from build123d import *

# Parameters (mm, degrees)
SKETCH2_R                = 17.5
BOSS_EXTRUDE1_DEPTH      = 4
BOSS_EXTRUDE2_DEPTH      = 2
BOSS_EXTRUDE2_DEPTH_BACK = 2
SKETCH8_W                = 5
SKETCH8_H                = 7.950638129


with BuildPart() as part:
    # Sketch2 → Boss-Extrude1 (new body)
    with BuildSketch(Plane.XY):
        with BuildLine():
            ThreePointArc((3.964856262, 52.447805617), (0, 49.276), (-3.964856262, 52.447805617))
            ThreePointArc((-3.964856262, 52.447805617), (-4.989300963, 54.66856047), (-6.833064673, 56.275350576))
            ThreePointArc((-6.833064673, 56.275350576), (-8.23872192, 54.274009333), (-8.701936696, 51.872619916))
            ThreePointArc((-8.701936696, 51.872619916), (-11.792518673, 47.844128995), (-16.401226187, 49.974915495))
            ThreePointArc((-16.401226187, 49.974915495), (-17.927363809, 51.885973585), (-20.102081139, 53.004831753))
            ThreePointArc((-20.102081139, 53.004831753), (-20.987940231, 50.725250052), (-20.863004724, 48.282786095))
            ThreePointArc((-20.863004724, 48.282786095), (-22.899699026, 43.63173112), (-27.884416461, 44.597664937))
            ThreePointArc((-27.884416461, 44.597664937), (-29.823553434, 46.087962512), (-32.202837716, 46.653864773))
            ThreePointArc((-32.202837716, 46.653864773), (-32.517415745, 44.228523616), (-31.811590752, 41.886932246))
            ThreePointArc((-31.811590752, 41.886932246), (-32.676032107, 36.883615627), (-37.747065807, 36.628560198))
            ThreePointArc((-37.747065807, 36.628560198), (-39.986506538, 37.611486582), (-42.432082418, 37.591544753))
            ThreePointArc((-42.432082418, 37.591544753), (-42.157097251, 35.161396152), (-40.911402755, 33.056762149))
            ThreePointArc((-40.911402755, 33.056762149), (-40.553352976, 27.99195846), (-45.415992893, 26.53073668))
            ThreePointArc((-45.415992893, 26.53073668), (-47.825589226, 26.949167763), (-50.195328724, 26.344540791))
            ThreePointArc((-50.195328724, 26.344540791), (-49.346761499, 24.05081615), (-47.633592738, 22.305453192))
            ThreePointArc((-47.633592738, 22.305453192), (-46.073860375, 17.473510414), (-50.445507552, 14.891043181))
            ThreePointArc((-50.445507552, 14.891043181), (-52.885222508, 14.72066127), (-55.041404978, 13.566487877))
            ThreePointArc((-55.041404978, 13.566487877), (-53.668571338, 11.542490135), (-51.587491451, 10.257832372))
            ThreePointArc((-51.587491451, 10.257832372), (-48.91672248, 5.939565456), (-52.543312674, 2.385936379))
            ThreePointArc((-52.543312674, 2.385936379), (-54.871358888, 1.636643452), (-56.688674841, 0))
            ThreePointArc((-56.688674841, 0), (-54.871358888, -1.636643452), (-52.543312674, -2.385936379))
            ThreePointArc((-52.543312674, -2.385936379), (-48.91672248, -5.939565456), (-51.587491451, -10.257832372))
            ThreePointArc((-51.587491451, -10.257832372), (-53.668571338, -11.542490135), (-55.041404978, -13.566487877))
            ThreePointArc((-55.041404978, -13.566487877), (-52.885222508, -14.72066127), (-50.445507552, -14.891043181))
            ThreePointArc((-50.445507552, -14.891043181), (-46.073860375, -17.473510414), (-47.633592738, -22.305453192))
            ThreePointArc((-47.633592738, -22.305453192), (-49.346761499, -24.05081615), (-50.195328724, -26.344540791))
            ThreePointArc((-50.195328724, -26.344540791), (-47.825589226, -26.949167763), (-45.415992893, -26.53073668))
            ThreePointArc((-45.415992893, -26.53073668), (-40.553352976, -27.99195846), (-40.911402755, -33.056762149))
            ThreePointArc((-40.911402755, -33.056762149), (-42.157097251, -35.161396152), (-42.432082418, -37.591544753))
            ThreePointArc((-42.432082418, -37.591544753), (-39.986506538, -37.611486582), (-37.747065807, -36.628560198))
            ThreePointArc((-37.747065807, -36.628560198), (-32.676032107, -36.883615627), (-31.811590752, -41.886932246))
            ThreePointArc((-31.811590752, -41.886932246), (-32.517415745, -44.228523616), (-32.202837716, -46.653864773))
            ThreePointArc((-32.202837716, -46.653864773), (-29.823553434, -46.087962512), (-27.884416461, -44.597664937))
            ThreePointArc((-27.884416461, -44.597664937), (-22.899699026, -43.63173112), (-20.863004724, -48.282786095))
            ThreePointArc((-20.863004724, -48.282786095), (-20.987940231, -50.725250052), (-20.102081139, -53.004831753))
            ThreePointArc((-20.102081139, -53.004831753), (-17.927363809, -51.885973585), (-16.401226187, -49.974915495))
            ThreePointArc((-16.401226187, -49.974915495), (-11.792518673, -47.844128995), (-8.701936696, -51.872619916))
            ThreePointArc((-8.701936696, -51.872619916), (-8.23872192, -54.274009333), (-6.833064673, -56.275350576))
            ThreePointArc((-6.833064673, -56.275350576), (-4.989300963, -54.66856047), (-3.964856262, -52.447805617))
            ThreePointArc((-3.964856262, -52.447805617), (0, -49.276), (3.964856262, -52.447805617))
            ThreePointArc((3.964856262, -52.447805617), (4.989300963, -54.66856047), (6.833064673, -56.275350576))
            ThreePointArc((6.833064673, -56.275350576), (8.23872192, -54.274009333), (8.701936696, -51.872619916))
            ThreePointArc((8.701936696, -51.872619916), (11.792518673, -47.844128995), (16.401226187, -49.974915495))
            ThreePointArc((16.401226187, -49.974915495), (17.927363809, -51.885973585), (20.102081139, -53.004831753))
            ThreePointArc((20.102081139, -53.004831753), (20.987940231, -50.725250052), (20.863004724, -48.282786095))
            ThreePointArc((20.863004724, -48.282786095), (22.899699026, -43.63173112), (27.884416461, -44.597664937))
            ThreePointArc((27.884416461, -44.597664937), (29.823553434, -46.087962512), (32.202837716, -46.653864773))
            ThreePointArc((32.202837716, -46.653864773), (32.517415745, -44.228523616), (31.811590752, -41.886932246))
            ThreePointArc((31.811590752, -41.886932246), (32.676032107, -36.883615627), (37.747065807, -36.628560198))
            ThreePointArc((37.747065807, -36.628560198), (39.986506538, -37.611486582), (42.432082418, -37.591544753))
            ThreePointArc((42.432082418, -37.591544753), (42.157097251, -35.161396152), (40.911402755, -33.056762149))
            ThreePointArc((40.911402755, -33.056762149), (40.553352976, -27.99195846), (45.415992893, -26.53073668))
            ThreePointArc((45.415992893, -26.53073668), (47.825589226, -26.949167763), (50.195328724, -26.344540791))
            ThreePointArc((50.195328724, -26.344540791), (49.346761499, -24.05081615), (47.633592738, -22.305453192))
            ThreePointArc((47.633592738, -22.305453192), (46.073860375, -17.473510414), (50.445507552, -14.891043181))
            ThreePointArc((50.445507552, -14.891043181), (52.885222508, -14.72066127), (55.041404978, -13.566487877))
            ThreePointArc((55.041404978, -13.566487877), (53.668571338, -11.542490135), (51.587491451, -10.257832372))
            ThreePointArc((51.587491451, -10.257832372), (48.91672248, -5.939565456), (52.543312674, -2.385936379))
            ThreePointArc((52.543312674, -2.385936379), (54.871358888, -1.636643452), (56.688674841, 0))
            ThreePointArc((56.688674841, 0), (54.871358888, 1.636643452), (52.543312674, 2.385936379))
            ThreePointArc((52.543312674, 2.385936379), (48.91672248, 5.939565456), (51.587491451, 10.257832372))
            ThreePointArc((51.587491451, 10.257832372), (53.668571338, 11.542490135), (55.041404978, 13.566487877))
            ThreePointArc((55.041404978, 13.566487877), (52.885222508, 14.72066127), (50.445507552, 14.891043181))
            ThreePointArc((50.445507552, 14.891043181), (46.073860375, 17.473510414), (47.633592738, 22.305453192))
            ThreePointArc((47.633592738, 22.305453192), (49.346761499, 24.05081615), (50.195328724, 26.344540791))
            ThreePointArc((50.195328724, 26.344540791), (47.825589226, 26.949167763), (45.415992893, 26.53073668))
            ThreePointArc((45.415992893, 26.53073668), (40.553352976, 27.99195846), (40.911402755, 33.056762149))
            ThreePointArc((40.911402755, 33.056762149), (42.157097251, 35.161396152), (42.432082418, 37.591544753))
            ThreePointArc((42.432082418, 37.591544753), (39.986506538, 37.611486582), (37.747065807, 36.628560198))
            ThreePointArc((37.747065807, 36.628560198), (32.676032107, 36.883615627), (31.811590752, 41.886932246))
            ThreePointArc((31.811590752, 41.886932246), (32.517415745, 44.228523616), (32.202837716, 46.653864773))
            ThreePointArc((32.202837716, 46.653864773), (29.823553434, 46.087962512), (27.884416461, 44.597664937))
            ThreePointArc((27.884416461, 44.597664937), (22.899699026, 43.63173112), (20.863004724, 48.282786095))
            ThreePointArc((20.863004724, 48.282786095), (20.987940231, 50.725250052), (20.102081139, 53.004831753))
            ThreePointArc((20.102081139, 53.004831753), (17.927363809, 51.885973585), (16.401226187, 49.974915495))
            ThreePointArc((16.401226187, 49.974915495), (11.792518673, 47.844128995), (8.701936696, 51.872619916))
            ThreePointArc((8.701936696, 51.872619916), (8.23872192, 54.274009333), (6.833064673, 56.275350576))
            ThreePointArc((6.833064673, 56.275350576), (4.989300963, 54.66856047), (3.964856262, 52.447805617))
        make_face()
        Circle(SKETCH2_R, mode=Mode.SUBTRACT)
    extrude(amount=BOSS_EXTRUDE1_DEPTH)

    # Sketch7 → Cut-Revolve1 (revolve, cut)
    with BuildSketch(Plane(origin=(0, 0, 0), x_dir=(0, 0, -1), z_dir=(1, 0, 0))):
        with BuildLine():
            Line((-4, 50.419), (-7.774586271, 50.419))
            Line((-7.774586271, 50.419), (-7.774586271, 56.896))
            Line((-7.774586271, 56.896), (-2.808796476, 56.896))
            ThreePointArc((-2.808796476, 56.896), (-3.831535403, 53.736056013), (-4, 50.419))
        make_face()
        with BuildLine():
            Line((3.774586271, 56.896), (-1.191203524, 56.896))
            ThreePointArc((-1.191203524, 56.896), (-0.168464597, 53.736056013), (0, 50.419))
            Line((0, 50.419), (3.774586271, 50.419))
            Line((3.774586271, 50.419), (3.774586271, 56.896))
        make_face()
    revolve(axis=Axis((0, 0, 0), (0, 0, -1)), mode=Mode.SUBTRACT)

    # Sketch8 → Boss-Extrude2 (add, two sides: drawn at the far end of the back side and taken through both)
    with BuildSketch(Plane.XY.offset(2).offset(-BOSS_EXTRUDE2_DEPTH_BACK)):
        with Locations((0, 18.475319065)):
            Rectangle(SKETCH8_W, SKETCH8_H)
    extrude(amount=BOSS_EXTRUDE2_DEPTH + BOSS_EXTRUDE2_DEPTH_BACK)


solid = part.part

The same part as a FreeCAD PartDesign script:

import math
import FreeCAD as App
import Part
import Sketcher
from FreeCAD import Vector


def add_polygon(sketch, points):
    """Adds a closed chain of lines whose ends are joined by coincident constraints."""
    first, n = sketch.GeometryCount, len(points)
    for a, b in zip(points, points[1:] + points[:1]):
        sketch.addGeometry(Part.LineSegment(App.Vector(*a, 0), App.Vector(*b, 0)), False)
    for i in range(n):
        sketch.addConstraint(Sketcher.Constraint("Coincident", first + i, 2, first + (i + 1) % n, 1))

doc = App.newDocument("Part")
body = doc.addObject("PartDesign::Body", "Body")

# Sketch on XY plane
sketch1 = doc.addObject("Sketcher::SketchObject", "Sketch")
body.addObject(sketch1)
sketch1.AttachmentSupport = (doc.XY_Plane, [""])
sketch1.MapMode = "FlatFace"
sketch1.addGeometry([
    Part.ArcOfCircle(Part.Circle(Vector(0, 53.34, 0), Vector(0, 0, 1), 4.064), math.radians(-167.318217), math.radians(-12.681783)),  # 0
    Part.ArcOfCircle(Part.Circle(Vector(-9.664337, 51.165276, 0), Vector(0, 0, 1), 5.842), math.radians(12.681783), math.radians(61.011048)),  # 1
    Part.ArcOfCircle(Part.Circle(Vector(-2.861143, 51.991334, 0), Vector(0, 0, 1), 5.842), math.radians(132.835105), math.radians(181.164371)),  # 2
    Part.ArcOfCircle(Part.Circle(Vector(-12.765098, 51.790037, 0), Vector(0, 0, 1), 4.064), math.radians(-153.472063), math.radians(1.164371)),  # 3
    Part.ArcOfCircle(Part.Circle(Vector(-21.628161, 47.365679, 0), Vector(0, 0, 1), 5.842), math.radians(26.527936), math.radians(74.857202)),  # 4
    Part.ArcOfCircle(Part.Circle(Vector(-15.220344, 49.795844, 0), Vector(0, 0, 1), 5.842), math.radians(146.681259), math.radians(195.010525)),  # 5
    Part.ArcOfCircle(Part.Circle(Vector(-24.788334, 47.230224, 0), Vector(0, 0, 1), 4.064), math.radians(-139.62591), math.radians(15.010525)),  # 6
    Part.ArcOfCircle(Part.Circle(Vector(-32.335035, 40.813361, 0), Vector(0, 0, 1), 5.842), math.radians(40.37409), math.radians(88.703356)),  # 7
    Part.ArcOfCircle(Part.Circle(Vector(-26.694994, 44.7064, 0), Vector(0, 0, 1), 5.842), math.radians(160.527413), math.radians(208.856679)),  # 8
    Part.ArcOfCircle(Part.Circle(Vector(-35.370963, 39.925563, 0), Vector(0, 0, 1), 4.064), math.radians(-125.779756), math.radians(28.856679)),  # 9
    Part.ArcOfCircle(Part.Circle(Vector(-41.162714, 31.889118, 0), Vector(0, 0, 1), 5.842), math.radians(54.220244), math.radians(102.54951)),  # 10
    Part.ArcOfCircle(Part.Circle(Vector(-36.618228, 37.018783, 0), Vector(0, 0, 1), 5.842), math.radians(174.373567), math.radians(222.702833)),  # 11
    Part.ArcOfCircle(Part.Circle(Vector(-43.897959, 30.300574, 0), Vector(0, 0, 1), 4.064), math.radians(-111.933602), math.radians(42.702833)),  # 12
    Part.ArcOfCircle(Part.Circle(Vector(-47.598166, 21.111596, 0), Vector(0, 0, 1), 5.842), math.radians(68.066398), math.radians(116.395664)),  # 13
    Part.ArcOfCircle(Part.Circle(Vector(-44.413343, 27.179769, 0), Vector(0, 0, 1), 5.842), math.radians(-171.780279), math.radians(-123.451013)),  # 14
    Part.ArcOfCircle(Part.Circle(Vector(-49.873766, 18.914625, 0), Vector(0, 0, 1), 4.064), math.radians(-98.087448), math.radians(56.548987)),  # 15
    Part.ArcOfCircle(Part.Circle(Vector(-51.267385, 9.107145, 0), Vector(0, 0, 1), 5.842), math.radians(81.912552), math.radians(130.241818)),  # 16
    Part.ArcOfCircle(Part.Circle(Vector(-49.627317, 15.761166, 0), Vector(0, 0, 1), 5.842), math.radians(-157.934125), math.radians(-109.60486)),  # 17
    Part.ArcOfCircle(Part.Circle(Vector(-52.951091, 6.429427, 0), Vector(0, 0, 1), 4.064), math.radians(-84.241294), math.radians(70.39514)),  # 18
    Part.ArcOfCircle(Part.Circle(Vector(-51.957131, -3.426581, 0), Vector(0, 0, 1), 5.842), math.radians(95.758706), math.radians(144.087972)),  # 19
    Part.ArcOfCircle(Part.Circle(Vector(-51.957131, 3.426581, 0), Vector(0, 0, 1), 5.842), math.radians(-144.087972), math.radians(-95.758706)),  # 20
    Part.ArcOfCircle(Part.Circle(Vector(-52.951091, -6.429427, 0), Vector(0, 0, 1), 4.064), math.radians(-70.39514), math.radians(84.241294)),  # 21
    Part.ArcOfCircle(Part.Circle(Vector(-49.627317, -15.761166, 0), Vector(0, 0, 1), 5.842), math.radians(109.60486), math.radians(157.934125)),  # 22
    Part.ArcOfCircle(Part.Circle(Vector(-51.267385, -9.107145, 0), Vector(0, 0, 1), 5.842), math.radians(-130.241818), math.radians(-81.912552)),  # 23
    Part.ArcOfCircle(Part.Circle(Vector(-49.873766, -18.914625, 0), Vector(0, 0, 1), 4.064), math.radians(-56.548987), math.radians(98.087448)),  # 24
    Part.ArcOfCircle(Part.Circle(Vector(-44.413343, -27.179769, 0), Vector(0, 0, 1), 5.842), math.radians(123.451013), math.radians(171.780279)),  # 25
    Part.ArcOfCircle(Part.Circle(Vector(-47.598166, -21.111596, 0), Vector(0, 0, 1), 5.842), math.radians(-116.395664), math.radians(-68.066398)),  # 26
    Part.ArcOfCircle(Part.Circle(Vector(-43.897959, -30.300574, 0), Vector(0, 0, 1), 4.064), math.radians(-42.702833), math.radians(111.933602)),  # 27
    Part.ArcOfCircle(Part.Circle(Vector(-36.618228, -37.018783, 0), Vector(0, 0, 1), 5.842), math.radians(137.297167), math.radians(185.626433)),  # 28
    Part.ArcOfCircle(Part.Circle(Vector(-41.162714, -31.889118, 0), Vector(0, 0, 1), 5.842), math.radians(-102.54951), math.radians(-54.220244)),  # 29
    Part.ArcOfCircle(Part.Circle(Vector(-35.370963, -39.925563, 0), Vector(0, 0, 1), 4.064), math.radians(-28.856679), math.radians(125.779756)),  # 30
    Part.ArcOfCircle(Part.Circle(Vector(-26.694994, -44.7064, 0), Vector(0, 0, 1), 5.842), math.radians(151.143321), math.radians(199.472587)),  # 31
    Part.ArcOfCircle(Part.Circle(Vector(-32.335035, -40.813361, 0), Vector(0, 0, 1), 5.842), math.radians(-88.703356), math.radians(-40.37409)),  # 32
    Part.ArcOfCircle(Part.Circle(Vector(-24.788334, -47.230224, 0), Vector(0, 0, 1), 4.064), math.radians(-15.010525), math.radians(139.62591)),  # 33
    Part.ArcOfCircle(Part.Circle(Vector(-15.220344, -49.795844, 0), Vector(0, 0, 1), 5.842), math.radians(164.989475), math.radians(213.318741)),  # 34
    Part.ArcOfCircle(Part.Circle(Vector(-21.628161, -47.365679, 0), Vector(0, 0, 1), 5.842), math.radians(-74.857202), math.radians(-26.527936)),  # 35
    Part.ArcOfCircle(Part.Circle(Vector(-12.765098, -51.790037, 0), Vector(0, 0, 1), 4.064), math.radians(-1.164371), math.radians(153.472063)),  # 36
    Part.ArcOfCircle(Part.Circle(Vector(-2.861143, -51.991334, 0), Vector(0, 0, 1), 5.842), math.radians(178.835629), math.radians(227.164895)),  # 37
    Part.ArcOfCircle(Part.Circle(Vector(-9.664337, -51.165276, 0), Vector(0, 0, 1), 5.842), math.radians(-61.011048), math.radians(-12.681783)),  # 38
    Part.ArcOfCircle(Part.Circle(Vector(0, -53.34, 0), Vector(0, 0, 1), 4.064), math.radians(12.681783), math.radians(167.318217)),  # 39
    Part.ArcOfCircle(Part.Circle(Vector(9.664337, -51.165276, 0), Vector(0, 0, 1), 5.842), math.radians(-167.318217), math.radians(-118.988952)),  # 40
    Part.ArcOfCircle(Part.Circle(Vector(2.861143, -51.991334, 0), Vector(0, 0, 1), 5.842), math.radians(-47.164895), math.radians(1.164371)),  # 41
    Part.ArcOfCircle(Part.Circle(Vector(12.765098, -51.790037, 0), Vector(0, 0, 1), 4.064), math.radians(26.527937), math.radians(181.164371)),  # 42
    Part.ArcOfCircle(Part.Circle(Vector(21.628161, -47.365679, 0), Vector(0, 0, 1), 5.842), math.radians(-153.472064), math.radians(-105.142798)),  # 43
    Part.ArcOfCircle(Part.Circle(Vector(15.220344, -49.795844, 0), Vector(0, 0, 1), 5.842), math.radians(-33.318741), math.radians(15.010525)),  # 44
    Part.ArcOfCircle(Part.Circle(Vector(24.788334, -47.230224, 0), Vector(0, 0, 1), 4.064), math.radians(40.37409), math.radians(195.010525)),  # 45
    Part.ArcOfCircle(Part.Circle(Vector(32.335035, -40.813361, 0), Vector(0, 0, 1), 5.842), math.radians(-139.62591), math.radians(-91.296644)),  # 46
    Part.ArcOfCircle(Part.Circle(Vector(26.694994, -44.7064, 0), Vector(0, 0, 1), 5.842), math.radians(-19.472587), math.radians(28.856679)),  # 47
    Part.ArcOfCircle(Part.Circle(Vector(35.370963, -39.925563, 0), Vector(0, 0, 1), 4.064), math.radians(54.220244), math.radians(208.856679)),  # 48
    Part.ArcOfCircle(Part.Circle(Vector(41.162714, -31.889118, 0), Vector(0, 0, 1), 5.842), math.radians(-125.779756), math.radians(-77.45049)),  # 49
    Part.ArcOfCircle(Part.Circle(Vector(36.618228, -37.018783, 0), Vector(0, 0, 1), 5.842), math.radians(-5.626433), math.radians(42.702833)),  # 50
    Part.ArcOfCircle(Part.Circle(Vector(43.897959, -30.300574, 0), Vector(0, 0, 1), 4.064), math.radians(68.066398), math.radians(222.702833)),  # 51
    Part.ArcOfCircle(Part.Circle(Vector(47.598166, -21.111596, 0), Vector(0, 0, 1), 5.842), math.radians(-111.933602), math.radians(-63.604336)),  # 52
    Part.ArcOfCircle(Part.Circle(Vector(44.413343, -27.179769, 0), Vector(0, 0, 1), 5.842), math.radians(8.219721), math.radians(56.548987)),  # 53
    Part.ArcOfCircle(Part.Circle(Vector(49.873766, -18.914625, 0), Vector(0, 0, 1), 4.064), math.radians(81.912552), math.radians(236.548987)),  # 54
    Part.ArcOfCircle(Part.Circle(Vector(51.267385, -9.107145, 0), Vector(0, 0, 1), 5.842), math.radians(-98.087448), math.radians(-49.758182)),  # 55
    Part.ArcOfCircle(Part.Circle(Vector(49.627317, -15.761166, 0), Vector(0, 0, 1), 5.842), math.radians(22.065875), math.radians(70.39514)),  # 56
    Part.ArcOfCircle(Part.Circle(Vector(52.951091, -6.429427, 0), Vector(0, 0, 1), 4.064), math.radians(95.758706), math.radians(250.39514)),  # 57
    Part.ArcOfCircle(Part.Circle(Vector(51.957131, 3.426581, 0), Vector(0, 0, 1), 5.842), math.radians(-84.241294), math.radians(-35.912028)),  # 58
    Part.ArcOfCircle(Part.Circle(Vector(51.957131, -3.426581, 0), Vector(0, 0, 1), 5.842), math.radians(35.912028), math.radians(84.241294)),  # 59
    Part.ArcOfCircle(Part.Circle(Vector(52.951091, 6.429427, 0), Vector(0, 0, 1), 4.064), math.radians(109.60486), math.radians(264.241294)),  # 60
    Part.ArcOfCircle(Part.Circle(Vector(49.627317, 15.761166, 0), Vector(0, 0, 1), 5.842), math.radians(-70.39514), math.radians(-22.065875)),  # 61
    Part.ArcOfCircle(Part.Circle(Vector(51.267385, 9.107145, 0), Vector(0, 0, 1), 5.842), math.radians(49.758182), math.radians(98.087448)),  # 62
    Part.ArcOfCircle(Part.Circle(Vector(49.873766, 18.914625, 0), Vector(0, 0, 1), 4.064), math.radians(123.451013), math.radians(278.087448)),  # 63
    Part.ArcOfCircle(Part.Circle(Vector(44.413343, 27.179769, 0), Vector(0, 0, 1), 5.842), math.radians(-56.548987), math.radians(-8.219721)),  # 64
    Part.ArcOfCircle(Part.Circle(Vector(47.598166, 21.111596, 0), Vector(0, 0, 1), 5.842), math.radians(63.604336), math.radians(111.933602)),  # 65
    Part.ArcOfCircle(Part.Circle(Vector(43.897959, 30.300574, 0), Vector(0, 0, 1), 4.064), math.radians(137.297167), math.radians(291.933602)),  # 66
    Part.ArcOfCircle(Part.Circle(Vector(36.618228, 37.018783, 0), Vector(0, 0, 1), 5.842), math.radians(-42.702833), math.radians(5.626433)),  # 67
    Part.ArcOfCircle(Part.Circle(Vector(41.162714, 31.889118, 0), Vector(0, 0, 1), 5.842), math.radians(77.45049), math.radians(125.779756)),  # 68
    Part.ArcOfCircle(Part.Circle(Vector(35.370963, 39.925563, 0), Vector(0, 0, 1), 4.064), math.radians(151.143321), math.radians(305.779756)),  # 69
    Part.ArcOfCircle(Part.Circle(Vector(26.694994, 44.7064, 0), Vector(0, 0, 1), 5.842), math.radians(-28.856679), math.radians(19.472587)),  # 70
    Part.ArcOfCircle(Part.Circle(Vector(32.335035, 40.813361, 0), Vector(0, 0, 1), 5.842), math.radians(91.296644), math.radians(139.62591)),  # 71
    Part.ArcOfCircle(Part.Circle(Vector(24.788334, 47.230224, 0), Vector(0, 0, 1), 4.064), math.radians(164.989475), math.radians(319.62591)),  # 72
    Part.ArcOfCircle(Part.Circle(Vector(15.220344, 49.795844, 0), Vector(0, 0, 1), 5.842), math.radians(-15.010525), math.radians(33.318741)),  # 73
    Part.ArcOfCircle(Part.Circle(Vector(21.628161, 47.365679, 0), Vector(0, 0, 1), 5.842), math.radians(105.142798), math.radians(153.472064)),  # 74
    Part.ArcOfCircle(Part.Circle(Vector(12.765098, 51.790037, 0), Vector(0, 0, 1), 4.064), math.radians(178.835629), math.radians(333.472063)),  # 75
    Part.ArcOfCircle(Part.Circle(Vector(2.861143, 51.991334, 0), Vector(0, 0, 1), 5.842), math.radians(-1.164371), math.radians(47.164895)),  # 76
    Part.ArcOfCircle(Part.Circle(Vector(9.664337, 51.165276, 0), Vector(0, 0, 1), 5.842), math.radians(118.988952), math.radians(167.318217)),  # 77
    Part.Circle(Vector(0, 0, 0), Vector(0, 0, 1), 17.5),  # 78
], False)
sketch1.addConstraint([
    Sketcher.Constraint("Tangent", 0, 1, 1, 1),
    Sketcher.Constraint("Coincident", 1, 2, 2, 1),
    Sketcher.Constraint("Tangent", 2, 2, 3, 2),
    Sketcher.Constraint("Tangent", 3, 1, 4, 1),
    Sketcher.Constraint("Coincident", 4, 2, 5, 1),
    Sketcher.Constraint("Tangent", 5, 2, 6, 2),
    Sketcher.Constraint("Tangent", 6, 1, 7, 1),
    Sketcher.Constraint("Coincident", 7, 2, 8, 1),
    Sketcher.Constraint("Tangent", 8, 2, 9, 2),
    Sketcher.Constraint("Tangent", 9, 1, 10, 1),
    Sketcher.Constraint("Coincident", 10, 2, 11, 1),
    Sketcher.Constraint("Tangent", 11, 2, 12, 2),
    Sketcher.Constraint("Tangent", 12, 1, 13, 1),
    Sketcher.Constraint("Coincident", 13, 2, 14, 1),
    Sketcher.Constraint("Tangent", 14, 2, 15, 2),
    Sketcher.Constraint("Tangent", 15, 1, 16, 1),
    Sketcher.Constraint("Coincident", 16, 2, 17, 1),
    Sketcher.Constraint("Tangent", 17, 2, 18, 2),
    Sketcher.Constraint("Tangent", 18, 1, 19, 1),
    Sketcher.Constraint("Coincident", 19, 2, 20, 1),
    Sketcher.Constraint("Tangent", 20, 2, 21, 2),
    Sketcher.Constraint("Tangent", 21, 1, 22, 1),
    Sketcher.Constraint("Coincident", 22, 2, 23, 1),
    Sketcher.Constraint("Tangent", 23, 2, 24, 2),
    Sketcher.Constraint("Tangent", 24, 1, 25, 1),
    Sketcher.Constraint("Coincident", 25, 2, 26, 1),
    Sketcher.Constraint("Tangent", 26, 2, 27, 2),
    Sketcher.Constraint("Tangent", 27, 1, 28, 1),
    Sketcher.Constraint("Coincident", 28, 2, 29, 1),
    Sketcher.Constraint("Tangent", 29, 2, 30, 2),
    Sketcher.Constraint("Tangent", 30, 1, 31, 1),
    Sketcher.Constraint("Coincident", 31, 2, 32, 1),
    Sketcher.Constraint("Tangent", 32, 2, 33, 2),
    Sketcher.Constraint("Tangent", 33, 1, 34, 1),
    Sketcher.Constraint("Coincident", 34, 2, 35, 1),
    Sketcher.Constraint("Tangent", 35, 2, 36, 2),
    Sketcher.Constraint("Tangent", 36, 1, 37, 1),
    Sketcher.Constraint("Coincident", 37, 2, 38, 1),
    Sketcher.Constraint("Tangent", 38, 2, 39, 2),
    Sketcher.Constraint("Tangent", 39, 1, 40, 1),
    Sketcher.Constraint("Coincident", 40, 2, 41, 1),
    Sketcher.Constraint("Tangent", 41, 2, 42, 2),
    Sketcher.Constraint("Tangent", 42, 1, 43, 1),
    Sketcher.Constraint("Coincident", 43, 2, 44, 1),
    Sketcher.Constraint("Tangent", 44, 2, 45, 2),
    Sketcher.Constraint("Tangent", 45, 1, 46, 1),
    Sketcher.Constraint("Coincident", 46, 2, 47, 1),
    Sketcher.Constraint("Tangent", 47, 2, 48, 2),
    Sketcher.Constraint("Tangent", 48, 1, 49, 1),
    Sketcher.Constraint("Coincident", 49, 2, 50, 1),
    Sketcher.Constraint("Tangent", 50, 2, 51, 2),
    Sketcher.Constraint("Tangent", 51, 1, 52, 1),
    Sketcher.Constraint("Coincident", 52, 2, 53, 1),
    Sketcher.Constraint("Tangent", 53, 2, 54, 2),
    Sketcher.Constraint("Tangent", 54, 1, 55, 1),
    Sketcher.Constraint("Coincident", 55, 2, 56, 1),
    Sketcher.Constraint("Tangent", 56, 2, 57, 2),
    Sketcher.Constraint("Tangent", 57, 1, 58, 1),
    Sketcher.Constraint("Coincident", 58, 2, 59, 1),
    Sketcher.Constraint("Tangent", 59, 2, 60, 2),
    Sketcher.Constraint("Tangent", 60, 1, 61, 1),
    Sketcher.Constraint("Coincident", 61, 2, 62, 1),
    Sketcher.Constraint("Tangent", 62, 2, 63, 2),
    Sketcher.Constraint("Tangent", 63, 1, 64, 1),
    Sketcher.Constraint("Coincident", 64, 2, 65, 1),
    Sketcher.Constraint("Tangent", 65, 2, 66, 2),
    Sketcher.Constraint("Tangent", 66, 1, 67, 1),
    Sketcher.Constraint("Coincident", 67, 2, 68, 1),
    Sketcher.Constraint("Tangent", 68, 2, 69, 2),
    Sketcher.Constraint("Tangent", 69, 1, 70, 1),
    Sketcher.Constraint("Coincident", 70, 2, 71, 1),
    Sketcher.Constraint("Tangent", 71, 2, 72, 2),
    Sketcher.Constraint("Tangent", 72, 1, 73, 1),
    Sketcher.Constraint("Coincident", 73, 2, 74, 1),
    Sketcher.Constraint("Tangent", 74, 2, 75, 2),
    Sketcher.Constraint("Tangent", 75, 1, 76, 1),
    Sketcher.Constraint("Coincident", 76, 2, 77, 1),
    Sketcher.Constraint("Tangent", 77, 2, 0, 2),
    Sketcher.Constraint("Coincident", 78, 3, -1, 1),
    Sketcher.Constraint("Equal", 1, 2),
    Sketcher.Constraint("Equal", 0, 3),
    Sketcher.Constraint("Equal", 2, 4),
    Sketcher.Constraint("Equal", 4, 5),
    Sketcher.Constraint("Equal", 3, 6),
    Sketcher.Constraint("Equal", 5, 7),
    Sketcher.Constraint("Equal", 7, 8),
    Sketcher.Constraint("Equal", 6, 9),
    Sketcher.Constraint("Equal", 8, 10),
    Sketcher.Constraint("Equal", 10, 11),
    Sketcher.Constraint("Equal", 9, 12),
    Sketcher.Constraint("Equal", 11, 13),
    Sketcher.Constraint("Equal", 13, 14),
    Sketcher.Constraint("Equal", 12, 15),
    Sketcher.Constraint("Equal", 14, 16),
    Sketcher.Constraint("Equal", 16, 17),
    Sketcher.Constraint("Equal", 15, 18),
    Sketcher.Constraint("Equal", 17, 19),
    Sketcher.Constraint("Equal", 19, 20),
    Sketcher.Constraint("Equal", 18, 21),
    Sketcher.Constraint("Equal", 20, 22),
    Sketcher.Constraint("Equal", 22, 23),
    Sketcher.Constraint("Equal", 21, 24),
    Sketcher.Constraint("Equal", 23, 25),
    Sketcher.Constraint("Equal", 25, 26),
    Sketcher.Constraint("Equal", 24, 27),
    Sketcher.Constraint("Equal", 26, 28),
    Sketcher.Constraint("Equal", 28, 29),
    Sketcher.Constraint("Equal", 27, 30),
    Sketcher.Constraint("Equal", 29, 31),
    Sketcher.Constraint("Equal", 31, 32),
    Sketcher.Constraint("Equal", 30, 33),
    Sketcher.Constraint("Equal", 32, 34),
    Sketcher.Constraint("Equal", 34, 35),
    Sketcher.Constraint("Equal", 33, 36),
    Sketcher.Constraint("Equal", 35, 37),
    Sketcher.Constraint("Equal", 37, 38),
    Sketcher.Constraint("Equal", 36, 39),
    Sketcher.Constraint("Equal", 38, 40),
    Sketcher.Constraint("Equal", 40, 41),
    Sketcher.Constraint("Equal", 39, 42),
    Sketcher.Constraint("Equal", 41, 43),
    Sketcher.Constraint("Equal", 43, 44),
    Sketcher.Constraint("Equal", 42, 45),
    Sketcher.Constraint("Equal", 44, 46),
    Sketcher.Constraint("Equal", 46, 47),
    Sketcher.Constraint("Equal", 45, 48),
    Sketcher.Constraint("Equal", 47, 49),
    Sketcher.Constraint("Equal", 49, 50),
    Sketcher.Constraint("Equal", 48, 51),
    Sketcher.Constraint("Equal", 50, 52),
    Sketcher.Constraint("Equal", 52, 53),
    Sketcher.Constraint("Equal", 51, 54),
    Sketcher.Constraint("Equal", 53, 55),
    Sketcher.Constraint("Equal", 55, 56),
    Sketcher.Constraint("Equal", 54, 57),
    Sketcher.Constraint("Equal", 56, 58),
    Sketcher.Constraint("Equal", 58, 59),
    Sketcher.Constraint("Equal", 57, 60),
    Sketcher.Constraint("Equal", 59, 61),
    Sketcher.Constraint("Equal", 61, 62),
    Sketcher.Constraint("Equal", 60, 63),
    Sketcher.Constraint("Equal", 62, 64),
    Sketcher.Constraint("Equal", 64, 65),
    Sketcher.Constraint("Equal", 63, 66),
    Sketcher.Constraint("Equal", 65, 67),
    Sketcher.Constraint("Equal", 67, 68),
    Sketcher.Constraint("Equal", 66, 69),
    Sketcher.Constraint("Equal", 68, 70),
    Sketcher.Constraint("Equal", 70, 71),
    Sketcher.Constraint("Equal", 69, 72),
    Sketcher.Constraint("Equal", 71, 73),
    Sketcher.Constraint("Equal", 73, 74),
    Sketcher.Constraint("Equal", 72, 75),
    Sketcher.Constraint("Equal", 74, 76),
    Sketcher.Constraint("Equal", 76, 77),
    Sketcher.Constraint("Symmetric", 0, 3, 39, 3, -1, 1),
    Sketcher.Constraint("Symmetric", 2, 3, 41, 3, -1, 1),
    Sketcher.Constraint("Symmetric", 4, 3, 43, 3, -1, 1),
    Sketcher.Constraint("Symmetric", 5, 3, 44, 3, -1, 1),
    Sketcher.Constraint("Symmetric", 7, 3, 46, 3, -1, 1),
    Sketcher.Constraint("Symmetric", 8, 3, 47, 3, -1, 1),
    Sketcher.Constraint("Symmetric", 10, 3, 49, 3, -1, 1),
    Sketcher.Constraint("Symmetric", 11, 3, 50, 3, -1, 1),
    Sketcher.Constraint("Symmetric", 13, 3, 52, 3, -1, 1),
    Sketcher.Constraint("Symmetric", 14, 3, 53, 3, -1, 1),
    Sketcher.Constraint("Symmetric", 16, 3, 55, 3, -1, 1),
    Sketcher.Constraint("Symmetric", 17, 3, 56, 3, -1, 1),
    Sketcher.Constraint("Symmetric", 19, 3, 58, 3, -1, 1),
    Sketcher.Constraint("Symmetric", 20, 3, 59, 3, -1, 1),
    Sketcher.Constraint("Symmetric", 22, 3, 61, 3, -1, 1),
    Sketcher.Constraint("Symmetric", 23, 3, 62, 3, -1, 1),
    Sketcher.Constraint("Symmetric", 25, 3, 64, 3, -1, 1),
    Sketcher.Constraint("Symmetric", 26, 3, 65, 3, -1, 1),
    Sketcher.Constraint("Symmetric", 28, 3, 67, 3, -1, 1),
    Sketcher.Constraint("Symmetric", 29, 3, 68, 3, -1, 1),
    Sketcher.Constraint("Symmetric", 31, 3, 70, 3, -1, 1),
    Sketcher.Constraint("Symmetric", 32, 3, 71, 3, -1, 1),
    Sketcher.Constraint("Symmetric", 34, 3, 73, 3, -1, 1),
    Sketcher.Constraint("Symmetric", 35, 3, 74, 3, -1, 1),
    Sketcher.Constraint("Symmetric", 37, 3, 76, 3, -1, 1),
    Sketcher.Constraint("Symmetric", 38, 3, 40, 3, -2),
    Sketcher.Constraint("Symmetric", 37, 3, 41, 3, -2),
    Sketcher.Constraint("Symmetric", 35, 3, 43, 3, -2),
    Sketcher.Constraint("Symmetric", 34, 3, 44, 3, -2),
    Sketcher.Constraint("Symmetric", 32, 3, 46, 3, -2),
    Sketcher.Constraint("Symmetric", 31, 3, 47, 3, -2),
    Sketcher.Constraint("Symmetric", 29, 3, 49, 3, -2),
    Sketcher.Constraint("Symmetric", 28, 3, 50, 3, -2),
    Sketcher.Constraint("Symmetric", 26, 3, 52, 3, -2),
    Sketcher.Constraint("Symmetric", 25, 3, 53, 3, -2),
    Sketcher.Constraint("Symmetric", 23, 3, 55, 3, -2),
    Sketcher.Constraint("Symmetric", 22, 3, 56, 3, -2),
    Sketcher.Constraint("Symmetric", 20, 3, 58, 3, -2),
    Sketcher.Constraint("Horizontal", 1, 3, 77, 3),
    Sketcher.Constraint("Vertical", 1, 3, 38, 3),
    Sketcher.Constraint("Diameter", 78, 35.0),
    Sketcher.Constraint("Radius", 0, 4.064),
    Sketcher.Constraint("Radius", 1, 5.842),
    Sketcher.Constraint("DistanceY", -1, 1, 0, 3, 53.34),
    Sketcher.Constraint("DistanceY", -1, 1, 8, 3, 44.7064),
    Sketcher.Constraint("DistanceX", 4, 3, -1, 1, 21.628161),
    Sketcher.Constraint("DistanceY", -1, 1, 4, 3, 47.365679),
    Sketcher.Constraint("DistanceY", -1, 1, 7, 3, 40.813361),
    Sketcher.Constraint("DistanceY", -1, 1, 10, 3, 31.889118),
    Sketcher.Constraint("DistanceX", 12, 3, -1, 1, 43.897959),
    Sketcher.Constraint("DistanceY", -1, 1, 14, 3, 27.179769),
    Sketcher.Constraint("DistanceX", 18, 3, -1, 1, 52.951091),
    Sketcher.Constraint("DistanceX", 19, 3, -1, 1, 51.957131),
    Sketcher.Constraint("DistanceY", 19, 3, -1, 1, 3.426581),
    Sketcher.Constraint("DistanceY", -1, 1, 1, 2, 56.275351),
    Sketcher.Constraint("DistanceY", -1, 1, 2, 2, 51.87262),
    Sketcher.Constraint("DistanceX", 4, 2, -1, 1, 20.102081),
    Sketcher.Constraint("DistanceX", 8, 2, -1, 1, 31.811591),
    Sketcher.Constraint("DistanceY", -1, 1, 9, 1, 36.62856),
    Sketcher.Constraint("DistanceX", 13, 2, -1, 1, 50.195329),
    Sketcher.Constraint("DistanceY", -1, 1, 13, 2, 26.344541),
    Sketcher.Constraint("DistanceX", 17, 2, -1, 1, 51.587491),
    Sketcher.Constraint("DistanceX", 1, 3, -1, 1, 9.664337),
    Sketcher.Constraint("DistanceX", 5, 3, -1, 1, 15.220344),
    Sketcher.Constraint("DistanceX", 6, 3, -1, 1, 24.788334),
    Sketcher.Constraint("DistanceX", 11, 3, -1, 1, 36.618228),
    Sketcher.Constraint("DistanceY", -1, 1, 11, 3, 37.018783),
    Sketcher.Constraint("DistanceX", 15, 3, -1, 1, 49.873766),
    Sketcher.Constraint("DistanceX", 16, 3, -1, 1, 51.267385),
])
pad1 = doc.addObject("PartDesign::Pad", "Pad")
body.addObject(pad1)
pad1.Profile = sketch1
pad1.Length = 4

# Sketch on YZ plane
sketch2 = doc.addObject("Sketcher::SketchObject", "Sketch001")
body.addObject(sketch2)
sketch2.AttachmentSupport = (doc.YZ_Plane, [""])
sketch2.MapMode = "FlatFace"
sketch2.addGeometry([
    Part.LineSegment(Vector(50.419, 7.774586, 0), Vector(50.419, 4, 0)),  # 0
    Part.ArcOfCircle(Part.Circle(Vector(51.438889, -8.658982, 0), Vector(0, 0, 1), 12.7), math.radians(64.551874), math.radians(94.606169)),  # 1
    Part.LineSegment(Vector(56.896, 2.808796, 0), Vector(56.896, 7.774586, 0)),  # 2
    Part.LineSegment(Vector(56.896, 7.774586, 0), Vector(50.419, 7.774586, 0)),  # 3
    Part.LineSegment(Vector(56.896, -3.774586, 0), Vector(56.896, 1.191204, 0)),  # 4
    Part.ArcOfCircle(Part.Circle(Vector(51.438889, 12.658982, 0), Vector(0, 0, 1), 12.7), math.radians(-94.606169), math.radians(-64.551874)),  # 5
    Part.LineSegment(Vector(50.419, 0, 0), Vector(50.419, -3.774586, 0)),  # 6
    Part.LineSegment(Vector(50.419, -3.774586, 0), Vector(56.896, -3.774586, 0)),  # 7
], False)
sketch2.addConstraint([
    Sketcher.Constraint("Coincident", 0, 2, 1, 2),
    Sketcher.Constraint("Coincident", 1, 1, 2, 1),
    Sketcher.Constraint("Coincident", 2, 2, 3, 1),
    Sketcher.Constraint("Coincident", 3, 2, 0, 1),
    Sketcher.Constraint("Coincident", 4, 2, 5, 2),
    Sketcher.Constraint("Coincident", 5, 1, 6, 1),
    Sketcher.Constraint("Coincident", 6, 2, 7, 1),
    Sketcher.Constraint("Coincident", 7, 2, 4, 1),
    Sketcher.Constraint("Vertical", 0),
    Sketcher.Constraint("Vertical", 2),
    Sketcher.Constraint("Horizontal", 3),
    Sketcher.Constraint("Vertical", 4),
    Sketcher.Constraint("Vertical", 6),
    Sketcher.Constraint("Horizontal", 7),
    Sketcher.Constraint("Equal", 1, 5),
    Sketcher.Constraint("PointOnObject", 5, 1, -1),
    Sketcher.Constraint("Vertical", 1, 3, 5, 3),
    Sketcher.Constraint("Vertical", 2, 2, 4, 2),
    Sketcher.Constraint("Vertical", 3, 2, 5, 1),
    Sketcher.Constraint("Equal", 2, 4),
    Sketcher.Constraint("Radius", 1, 12.7),
    Sketcher.Constraint("DistanceY", -1, 1, 0, 2, 4.0),
    Sketcher.Constraint("DistanceX", 3, 2, 3, 1, 6.477),
    Sketcher.Constraint("DistanceX", -1, 1, 0, 2, 50.419),
    Sketcher.Constraint("DistanceY", 2, 1, 2, 2, 4.96579),
    Sketcher.Constraint("DistanceY", 0, 2, 0, 1, 3.774586),
])
groove = doc.addObject("PartDesign::Groove", "Groove")
body.addObject(groove)
groove.Profile = sketch2
groove.ReferenceAxis = (sketch2, ["V_Axis"])
groove.Angle = 360

# Sketch on XY plane
sketch3 = doc.addObject("Sketcher::SketchObject", "Sketch002")
body.addObject(sketch3)
sketch3.AttachmentSupport = (doc.XY_Plane, [""])
sketch3.MapMode = "FlatFace"
sketch3.AttachmentOffset = App.Placement(Vector(0, 0, 2), App.Rotation())
add_polygon(sketch3, [(-2.5, 22.450638), (-2.5, 14.5), (2.5, 14.5), (2.5, 22.450638)])  # lines 0-3
sketch3.addConstraint([
    Sketcher.Constraint("Vertical", 0),
    Sketcher.Constraint("Horizontal", 1),
    Sketcher.Constraint("Vertical", 2),
    Sketcher.Constraint("Horizontal", 3),
    Sketcher.Constraint("DistanceX", 1, 1, 1, 2, 5.0),
    Sketcher.Constraint("DistanceX", 0, 2, -1, 1, 2.5),
    Sketcher.Constraint("DistanceY", -1, 1, 0, 2, 14.5),
    Sketcher.Constraint("DistanceY", 0, 2, 0, 1, 7.950638),
])
pad2 = doc.addObject("PartDesign::Pad", "Pad001")
body.addObject(pad2)
pad2.Profile = sketch3
pad2.Type = "TwoLengths"
pad2.Length = 2
pad2.Length2 = 2

doc.recompute()
